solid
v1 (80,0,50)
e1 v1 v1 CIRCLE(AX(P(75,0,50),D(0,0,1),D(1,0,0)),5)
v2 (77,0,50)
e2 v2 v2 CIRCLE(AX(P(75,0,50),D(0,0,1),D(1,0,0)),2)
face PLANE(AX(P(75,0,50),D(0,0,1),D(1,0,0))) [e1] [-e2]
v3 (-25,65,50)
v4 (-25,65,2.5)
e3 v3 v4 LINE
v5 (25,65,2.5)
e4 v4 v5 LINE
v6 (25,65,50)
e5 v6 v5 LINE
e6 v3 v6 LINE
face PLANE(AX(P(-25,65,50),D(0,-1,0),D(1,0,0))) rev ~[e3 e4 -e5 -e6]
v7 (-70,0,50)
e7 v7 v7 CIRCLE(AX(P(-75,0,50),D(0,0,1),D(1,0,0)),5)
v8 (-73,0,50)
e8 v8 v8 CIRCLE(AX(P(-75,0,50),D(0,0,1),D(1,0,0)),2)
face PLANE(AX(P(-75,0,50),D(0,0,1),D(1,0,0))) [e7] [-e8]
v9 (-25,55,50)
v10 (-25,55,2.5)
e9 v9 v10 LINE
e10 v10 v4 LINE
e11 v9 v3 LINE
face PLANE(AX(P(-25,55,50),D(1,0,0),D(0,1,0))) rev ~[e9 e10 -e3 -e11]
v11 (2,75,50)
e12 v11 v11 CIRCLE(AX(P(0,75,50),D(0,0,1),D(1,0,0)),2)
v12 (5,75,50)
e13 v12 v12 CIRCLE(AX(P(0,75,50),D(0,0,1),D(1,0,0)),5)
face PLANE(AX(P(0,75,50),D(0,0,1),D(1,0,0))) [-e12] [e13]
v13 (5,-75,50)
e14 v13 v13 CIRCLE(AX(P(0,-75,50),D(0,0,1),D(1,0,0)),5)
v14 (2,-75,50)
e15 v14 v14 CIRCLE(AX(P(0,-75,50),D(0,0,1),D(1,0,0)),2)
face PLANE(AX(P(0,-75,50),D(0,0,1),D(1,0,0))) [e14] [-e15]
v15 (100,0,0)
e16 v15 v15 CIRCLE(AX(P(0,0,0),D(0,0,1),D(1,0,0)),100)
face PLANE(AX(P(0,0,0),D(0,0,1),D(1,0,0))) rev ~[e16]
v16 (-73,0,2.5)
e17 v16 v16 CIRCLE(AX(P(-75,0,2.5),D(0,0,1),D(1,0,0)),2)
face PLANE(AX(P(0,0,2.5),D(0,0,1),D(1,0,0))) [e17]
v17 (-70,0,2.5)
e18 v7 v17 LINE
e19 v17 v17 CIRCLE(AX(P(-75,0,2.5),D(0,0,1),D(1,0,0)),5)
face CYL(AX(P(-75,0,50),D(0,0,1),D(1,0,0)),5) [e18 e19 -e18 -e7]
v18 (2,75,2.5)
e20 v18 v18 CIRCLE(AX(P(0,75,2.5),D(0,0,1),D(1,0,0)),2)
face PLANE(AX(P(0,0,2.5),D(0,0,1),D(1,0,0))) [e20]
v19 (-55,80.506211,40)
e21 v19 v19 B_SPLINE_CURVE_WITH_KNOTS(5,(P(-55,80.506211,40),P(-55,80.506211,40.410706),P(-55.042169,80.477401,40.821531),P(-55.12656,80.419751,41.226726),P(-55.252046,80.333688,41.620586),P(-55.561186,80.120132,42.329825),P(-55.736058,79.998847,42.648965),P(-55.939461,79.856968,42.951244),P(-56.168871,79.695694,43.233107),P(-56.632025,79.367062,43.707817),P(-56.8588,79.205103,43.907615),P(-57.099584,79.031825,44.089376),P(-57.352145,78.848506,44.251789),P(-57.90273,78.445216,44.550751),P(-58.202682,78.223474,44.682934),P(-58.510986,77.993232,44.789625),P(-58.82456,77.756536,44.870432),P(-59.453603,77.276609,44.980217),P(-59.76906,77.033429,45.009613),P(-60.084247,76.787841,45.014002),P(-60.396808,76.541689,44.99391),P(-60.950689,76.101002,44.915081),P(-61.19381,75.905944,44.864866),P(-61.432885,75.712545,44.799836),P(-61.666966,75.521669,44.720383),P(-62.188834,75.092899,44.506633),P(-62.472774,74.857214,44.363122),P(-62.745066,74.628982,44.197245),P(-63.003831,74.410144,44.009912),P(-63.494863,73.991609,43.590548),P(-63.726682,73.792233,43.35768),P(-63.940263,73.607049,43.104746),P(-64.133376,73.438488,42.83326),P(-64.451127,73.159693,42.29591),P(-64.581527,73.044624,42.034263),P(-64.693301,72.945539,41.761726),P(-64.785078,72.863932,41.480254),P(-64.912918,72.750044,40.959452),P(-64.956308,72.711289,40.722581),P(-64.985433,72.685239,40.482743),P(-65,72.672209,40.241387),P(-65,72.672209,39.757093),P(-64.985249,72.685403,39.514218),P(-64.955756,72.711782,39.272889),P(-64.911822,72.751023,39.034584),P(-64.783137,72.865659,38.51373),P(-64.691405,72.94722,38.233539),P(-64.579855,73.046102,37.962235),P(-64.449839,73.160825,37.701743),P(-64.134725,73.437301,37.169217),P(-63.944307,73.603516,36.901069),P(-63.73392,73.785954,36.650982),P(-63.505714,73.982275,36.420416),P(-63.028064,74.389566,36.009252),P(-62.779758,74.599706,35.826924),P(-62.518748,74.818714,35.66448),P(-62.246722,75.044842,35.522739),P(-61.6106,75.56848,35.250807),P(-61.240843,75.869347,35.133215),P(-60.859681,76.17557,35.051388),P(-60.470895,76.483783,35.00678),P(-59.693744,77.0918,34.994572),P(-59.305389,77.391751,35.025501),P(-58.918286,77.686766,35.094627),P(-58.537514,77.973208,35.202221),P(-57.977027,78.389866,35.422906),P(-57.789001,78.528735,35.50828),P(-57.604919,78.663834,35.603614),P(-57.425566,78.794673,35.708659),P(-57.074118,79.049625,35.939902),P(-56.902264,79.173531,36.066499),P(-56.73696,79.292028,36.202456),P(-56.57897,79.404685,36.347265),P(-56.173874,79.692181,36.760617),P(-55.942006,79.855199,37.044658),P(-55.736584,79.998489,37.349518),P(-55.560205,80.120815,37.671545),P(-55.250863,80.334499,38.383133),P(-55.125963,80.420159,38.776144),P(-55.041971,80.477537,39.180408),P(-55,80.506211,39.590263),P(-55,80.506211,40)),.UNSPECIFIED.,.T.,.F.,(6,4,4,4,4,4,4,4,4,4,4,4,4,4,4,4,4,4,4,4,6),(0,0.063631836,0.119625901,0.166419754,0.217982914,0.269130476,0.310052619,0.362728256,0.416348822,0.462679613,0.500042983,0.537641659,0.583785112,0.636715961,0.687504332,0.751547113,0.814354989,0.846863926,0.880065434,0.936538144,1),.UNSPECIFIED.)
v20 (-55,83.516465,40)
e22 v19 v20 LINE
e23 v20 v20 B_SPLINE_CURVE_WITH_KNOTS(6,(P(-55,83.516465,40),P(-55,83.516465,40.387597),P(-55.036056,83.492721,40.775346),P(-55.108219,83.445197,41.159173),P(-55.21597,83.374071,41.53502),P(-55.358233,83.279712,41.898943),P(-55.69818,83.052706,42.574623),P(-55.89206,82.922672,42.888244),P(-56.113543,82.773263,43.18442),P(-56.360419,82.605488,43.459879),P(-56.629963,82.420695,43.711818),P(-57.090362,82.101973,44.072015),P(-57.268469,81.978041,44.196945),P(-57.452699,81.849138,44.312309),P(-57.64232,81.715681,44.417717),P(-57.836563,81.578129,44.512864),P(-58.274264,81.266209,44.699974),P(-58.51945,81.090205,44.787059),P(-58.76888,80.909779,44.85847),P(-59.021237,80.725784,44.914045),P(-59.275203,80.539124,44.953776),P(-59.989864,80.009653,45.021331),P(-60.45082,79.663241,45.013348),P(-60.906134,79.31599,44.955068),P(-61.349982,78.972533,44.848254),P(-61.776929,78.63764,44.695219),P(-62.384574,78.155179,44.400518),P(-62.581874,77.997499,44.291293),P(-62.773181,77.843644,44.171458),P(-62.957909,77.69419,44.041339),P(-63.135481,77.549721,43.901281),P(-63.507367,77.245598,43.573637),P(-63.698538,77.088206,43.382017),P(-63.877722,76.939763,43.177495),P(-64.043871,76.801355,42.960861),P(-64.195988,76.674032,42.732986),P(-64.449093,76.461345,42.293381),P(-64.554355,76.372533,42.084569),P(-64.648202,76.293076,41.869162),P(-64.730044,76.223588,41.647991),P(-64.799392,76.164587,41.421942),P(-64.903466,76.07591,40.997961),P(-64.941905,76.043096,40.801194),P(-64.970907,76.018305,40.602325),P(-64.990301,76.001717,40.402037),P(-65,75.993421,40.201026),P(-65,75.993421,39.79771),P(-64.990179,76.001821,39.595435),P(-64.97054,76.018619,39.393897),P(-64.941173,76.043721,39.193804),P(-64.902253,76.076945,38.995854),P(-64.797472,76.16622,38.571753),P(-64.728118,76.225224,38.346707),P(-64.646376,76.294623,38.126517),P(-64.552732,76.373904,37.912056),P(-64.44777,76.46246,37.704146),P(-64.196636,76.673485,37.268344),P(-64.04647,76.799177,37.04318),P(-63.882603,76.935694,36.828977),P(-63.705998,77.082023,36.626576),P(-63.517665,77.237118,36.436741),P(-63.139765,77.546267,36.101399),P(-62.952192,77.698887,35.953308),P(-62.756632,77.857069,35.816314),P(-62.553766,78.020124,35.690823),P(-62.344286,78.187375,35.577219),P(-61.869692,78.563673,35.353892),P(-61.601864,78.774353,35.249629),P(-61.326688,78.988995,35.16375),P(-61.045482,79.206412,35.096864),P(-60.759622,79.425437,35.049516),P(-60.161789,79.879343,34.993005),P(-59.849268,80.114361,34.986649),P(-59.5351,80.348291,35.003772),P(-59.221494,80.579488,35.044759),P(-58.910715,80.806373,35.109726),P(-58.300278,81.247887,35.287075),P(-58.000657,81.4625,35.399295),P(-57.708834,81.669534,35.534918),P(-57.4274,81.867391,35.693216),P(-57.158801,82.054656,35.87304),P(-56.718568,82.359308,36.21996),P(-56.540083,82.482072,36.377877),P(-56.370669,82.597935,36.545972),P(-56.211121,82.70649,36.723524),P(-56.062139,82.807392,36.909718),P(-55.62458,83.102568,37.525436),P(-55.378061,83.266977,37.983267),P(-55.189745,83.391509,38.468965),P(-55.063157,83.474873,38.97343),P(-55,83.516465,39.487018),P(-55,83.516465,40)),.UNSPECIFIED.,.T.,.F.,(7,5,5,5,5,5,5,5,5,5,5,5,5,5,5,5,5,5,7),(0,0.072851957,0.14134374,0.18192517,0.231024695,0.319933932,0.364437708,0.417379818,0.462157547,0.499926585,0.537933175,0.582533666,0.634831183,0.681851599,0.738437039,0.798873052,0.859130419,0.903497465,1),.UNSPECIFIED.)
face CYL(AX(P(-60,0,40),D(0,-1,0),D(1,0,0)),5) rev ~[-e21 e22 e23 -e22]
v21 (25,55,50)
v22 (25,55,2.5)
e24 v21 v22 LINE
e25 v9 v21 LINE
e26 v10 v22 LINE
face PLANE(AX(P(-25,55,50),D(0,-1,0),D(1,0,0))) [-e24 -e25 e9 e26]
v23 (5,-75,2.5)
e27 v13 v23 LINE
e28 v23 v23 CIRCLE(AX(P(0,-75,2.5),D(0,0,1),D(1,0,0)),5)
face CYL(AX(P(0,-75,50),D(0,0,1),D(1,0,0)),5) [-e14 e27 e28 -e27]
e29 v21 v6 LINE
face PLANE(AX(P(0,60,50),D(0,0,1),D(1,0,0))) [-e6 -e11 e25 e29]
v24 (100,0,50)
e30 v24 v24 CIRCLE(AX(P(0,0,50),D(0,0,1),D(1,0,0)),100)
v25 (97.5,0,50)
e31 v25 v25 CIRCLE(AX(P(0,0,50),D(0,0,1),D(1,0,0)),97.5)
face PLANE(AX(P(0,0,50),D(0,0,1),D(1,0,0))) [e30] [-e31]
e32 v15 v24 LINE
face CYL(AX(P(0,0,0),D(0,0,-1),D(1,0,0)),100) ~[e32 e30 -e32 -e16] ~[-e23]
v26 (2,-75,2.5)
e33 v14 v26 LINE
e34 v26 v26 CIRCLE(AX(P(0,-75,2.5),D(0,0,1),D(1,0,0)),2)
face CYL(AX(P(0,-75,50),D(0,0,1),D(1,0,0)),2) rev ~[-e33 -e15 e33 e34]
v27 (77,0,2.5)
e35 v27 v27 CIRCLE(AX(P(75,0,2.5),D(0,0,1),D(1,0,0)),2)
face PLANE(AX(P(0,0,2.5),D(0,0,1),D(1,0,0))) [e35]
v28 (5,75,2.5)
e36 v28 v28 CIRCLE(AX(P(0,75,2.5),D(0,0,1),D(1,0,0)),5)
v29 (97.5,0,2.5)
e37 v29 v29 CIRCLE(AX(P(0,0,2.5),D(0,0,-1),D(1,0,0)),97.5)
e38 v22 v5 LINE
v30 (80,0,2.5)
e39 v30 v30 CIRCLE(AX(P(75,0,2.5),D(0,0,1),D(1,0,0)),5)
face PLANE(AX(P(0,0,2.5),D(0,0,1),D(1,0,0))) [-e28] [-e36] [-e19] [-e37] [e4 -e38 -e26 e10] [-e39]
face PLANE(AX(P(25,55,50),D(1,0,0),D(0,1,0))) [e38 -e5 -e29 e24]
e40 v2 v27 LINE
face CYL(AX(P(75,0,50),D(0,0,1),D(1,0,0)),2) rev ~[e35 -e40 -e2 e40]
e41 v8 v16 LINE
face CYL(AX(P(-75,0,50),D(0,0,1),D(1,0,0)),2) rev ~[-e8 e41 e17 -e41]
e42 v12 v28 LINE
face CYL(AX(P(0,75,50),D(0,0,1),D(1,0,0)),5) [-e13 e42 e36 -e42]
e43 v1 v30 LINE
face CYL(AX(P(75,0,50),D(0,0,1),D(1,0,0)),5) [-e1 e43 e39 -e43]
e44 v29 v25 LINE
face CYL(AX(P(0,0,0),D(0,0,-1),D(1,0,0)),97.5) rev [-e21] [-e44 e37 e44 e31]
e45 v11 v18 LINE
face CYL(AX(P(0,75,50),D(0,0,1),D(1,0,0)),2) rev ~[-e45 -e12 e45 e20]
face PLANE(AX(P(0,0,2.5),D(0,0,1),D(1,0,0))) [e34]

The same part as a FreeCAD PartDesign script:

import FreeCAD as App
import Part
import Sketcher

V = App.Vector
Q = App.Units.Quantity


def faces_at(feature, points):
    """Names of the faces that lie closest to the given points."""
    faces = feature.Shape.Faces
    near = lambda p: min(range(len(faces)), key=lambda i: faces[i].distToShape(Part.Vertex(*p))[0])
    return sorted({f"Face{near(p) + 1}" for p in points})

doc = App.newDocument("Part")
body = doc.addObject("PartDesign::Body", "Body")

# Sketch on XY plane
sketch1 = doc.addObject("Sketcher::SketchObject", "Sketch")
body.addObject(sketch1)
sketch1.AttachmentSupport = (doc.XY_Plane, [""])
sketch1.MapMode = "FlatFace"
sketch1.addGeometry(Part.Circle(V(0, 0, 0), V(0, 0, 1), 100), False)
sketch1.addConstraint(Sketcher.Constraint("Coincident", 0, 3, -1, 1))
sketch1.addConstraint(Sketcher.Constraint("Diameter", 0, Q("200 mm")))
pad1 = doc.addObject("PartDesign::Pad", "Pad")
body.addObject(pad1)
pad1.Profile = sketch1
pad1.Length = 50
doc.recompute()

thickness = doc.addObject("PartDesign::Thickness", "Thickness")
body.addObject(thickness)
thickness.Base = (pad1, faces_at(pad1, [(0, 0, 50)]))
thickness.Value = 2.5
thickness.Reversed = True
thickness.Join = "Arc"

# Sketch on XY plane
sketch2 = doc.addObject("Sketcher::SketchObject", "Sketch001")
body.addObject(sketch2)
sketch2.AttachmentSupport = (doc.XY_Plane, [""])
sketch2.MapMode = "FlatFace"
sketch2.AttachmentOffset = App.Placement(V(0, 0, 50), App.Rotation())
sketch2.addGeometry(Part.Circle(V(-75, 0, 0), V(0, 0, 1), 5), False)
sketch2.addGeometry(Part.Circle(V(-75, 0, 0), V(0, 0, 1), 2), False)
sketch2.addGeometry(Part.Circle(V(0, -75, 0), V(0, 0, 1), 5), False)
sketch2.addGeometry(Part.Circle(V(0, -75, 0), V(0, 0, 1), 2), False)
sketch2.addGeometry(Part.Circle(V(75, 0, 0), V(0, 0, 1), 5), False)
sketch2.addGeometry(Part.Circle(V(75, 0, 0), V(0, 0, 1), 2), False)
sketch2.addGeometry(Part.Circle(V(0, 75, 0), V(0, 0, 1), 5), False)
sketch2.addGeometry(Part.Circle(V(0, 75, 0), V(0, 0, 1), 2), False)
sketch2.addConstraint(Sketcher.Constraint("Coincident", 1, 3, 0, 3))
sketch2.addConstraint(Sketcher.Constraint("Coincident", 3, 3, 2, 3))
sketch2.addConstraint(Sketcher.Constraint("Coincident", 5, 3, 4, 3))
sketch2.addConstraint(Sketcher.Constraint("Coincident", 7, 3, 6, 3))
sketch2.addConstraint(Sketcher.Constraint("Equal", 0, 2))
sketch2.addConstraint(Sketcher.Constraint("Equal", 1, 3))
sketch2.addConstraint(Sketcher.Constraint("Equal", 2, 4))
sketch2.addConstraint(Sketcher.Constraint("Equal", 3, 5))
sketch2.addConstraint(Sketcher.Constraint("Equal", 4, 6))
sketch2.addConstraint(Sketcher.Constraint("Equal", 5, 7))
sketch2.addConstraint(Sketcher.Constraint("Symmetric", 0, 3, 4, 3, -1, 1))
sketch2.addConstraint(Sketcher.Constraint("Symmetric", 2, 3, 6, 3, -1, 1))
sketch2.addConstraint(Sketcher.Constraint("PointOnObject", 0, 3, -1))
sketch2.addConstraint(Sketcher.Constraint("PointOnObject", 2, 3, -2))
sketch2.addConstraint(Sketcher.Constraint("Diameter", 0, Q("10 mm")))
sketch2.addConstraint(Sketcher.Constraint("Diameter", 1, Q("4 mm")))
sketch2.addConstraint(Sketcher.Constraint("DistanceX", 0, 3, -1, 1, Q("75 mm")))
sketch2.addConstraint(Sketcher.Constraint("DistanceY", 2, 3, -1, 1, Q("75 mm")))
pad2 = doc.addObject("PartDesign::Pad", "Pad001")
body.addObject(pad2)
pad2.Profile = sketch2
pad2.Type = "UpToLast"
pad2.Reversed = True

# Sketch on XZ plane
sketch3 = doc.addObject("Sketcher::SketchObject", "Sketch002")
body.addObject(sketch3)
sketch3.AttachmentSupport = (doc.XZ_Plane, [""])
sketch3.MapMode = "FlatFace"
sketch3.addGeometry(Part.Circle(V(-60, 40, 0), V(0, 0, 1), 5), False)
sketch3.addConstraint(Sketcher.Constraint("Diameter", 0, Q("10 mm")))
sketch3.addConstraint(Sketcher.Constraint("DistanceX", 0, 3, -1, 1, Q("60 mm")))
sketch3.addConstraint(Sketcher.Constraint("DistanceY", -1, 1, 0, 3, Q("40 mm")))
pocket1 = doc.addObject("PartDesign::Pocket", "Pocket")
body.addObject(pocket1)
pocket1.Profile = sketch3
pocket1.Type = "ThroughAll"

# Sketch on XY plane
sketch4 = doc.addObject("Sketcher::SketchObject", "Sketch003")
body.addObject(sketch4)
sketch4.AttachmentSupport = (doc.XY_Plane, [""])
sketch4.MapMode = "FlatFace"
sketch4.AttachmentOffset = App.Placement(V(0, 0, 50), App.Rotation())
sketch4.addGeometry(Part.LineSegment(V(-25, 65, 0), V(-25, 55, 0)), False)
sketch4.addGeometry(Part.LineSegment(V(-25, 55, 0), V(25, 55, 0)), False)
sketch4.addGeometry(Part.LineSegment(V(25, 55, 0), V(25, 65, 0)), False)
sketch4.addGeometry(Part.LineSegment(V(25, 65, 0), V(-25, 65, 0)), False)
sketch4.addConstraint(Sketcher.Constraint("Coincident", 0, 2, 1, 1))
sketch4.addConstraint(Sketcher.Constraint("Coincident", 1, 2, 2, 1))
sketch4.addConstraint(Sketcher.Constraint("Coincident", 2, 2, 3, 1))
sketch4.addConstraint(Sketcher.Constraint("Coincident", 3, 2, 0, 1))
sketch4.addConstraint(Sketcher.Constraint("Vertical", 0))
sketch4.addConstraint(Sketcher.Constraint("Horizontal", 1))
sketch4.addConstraint(Sketcher.Constraint("Vertical", 2))
sketch4.addConstraint(Sketcher.Constraint("Horizontal", 3))
sketch4.addConstraint(Sketcher.Constraint("DistanceX", 1, 1, 1, 2, Q("50 mm")))
sketch4.addConstraint(Sketcher.Constraint("DistanceY", 0, 2, 0, 1, Q("10 mm")))
sketch4.addConstraint(Sketcher.Constraint("DistanceX", 0, 2, -1, 1, Q("25 mm")))
sketch4.addConstraint(Sketcher.Constraint("DistanceY", -1, 1, 0, 2, Q("55 mm")))
pad3 = doc.addObject("PartDesign::Pad", "Pad002")
body.addObject(pad3)
pad3.Profile = sketch4
pad3.Type = "UpToLast"
pad3.Reversed = True

doc.recompute()
